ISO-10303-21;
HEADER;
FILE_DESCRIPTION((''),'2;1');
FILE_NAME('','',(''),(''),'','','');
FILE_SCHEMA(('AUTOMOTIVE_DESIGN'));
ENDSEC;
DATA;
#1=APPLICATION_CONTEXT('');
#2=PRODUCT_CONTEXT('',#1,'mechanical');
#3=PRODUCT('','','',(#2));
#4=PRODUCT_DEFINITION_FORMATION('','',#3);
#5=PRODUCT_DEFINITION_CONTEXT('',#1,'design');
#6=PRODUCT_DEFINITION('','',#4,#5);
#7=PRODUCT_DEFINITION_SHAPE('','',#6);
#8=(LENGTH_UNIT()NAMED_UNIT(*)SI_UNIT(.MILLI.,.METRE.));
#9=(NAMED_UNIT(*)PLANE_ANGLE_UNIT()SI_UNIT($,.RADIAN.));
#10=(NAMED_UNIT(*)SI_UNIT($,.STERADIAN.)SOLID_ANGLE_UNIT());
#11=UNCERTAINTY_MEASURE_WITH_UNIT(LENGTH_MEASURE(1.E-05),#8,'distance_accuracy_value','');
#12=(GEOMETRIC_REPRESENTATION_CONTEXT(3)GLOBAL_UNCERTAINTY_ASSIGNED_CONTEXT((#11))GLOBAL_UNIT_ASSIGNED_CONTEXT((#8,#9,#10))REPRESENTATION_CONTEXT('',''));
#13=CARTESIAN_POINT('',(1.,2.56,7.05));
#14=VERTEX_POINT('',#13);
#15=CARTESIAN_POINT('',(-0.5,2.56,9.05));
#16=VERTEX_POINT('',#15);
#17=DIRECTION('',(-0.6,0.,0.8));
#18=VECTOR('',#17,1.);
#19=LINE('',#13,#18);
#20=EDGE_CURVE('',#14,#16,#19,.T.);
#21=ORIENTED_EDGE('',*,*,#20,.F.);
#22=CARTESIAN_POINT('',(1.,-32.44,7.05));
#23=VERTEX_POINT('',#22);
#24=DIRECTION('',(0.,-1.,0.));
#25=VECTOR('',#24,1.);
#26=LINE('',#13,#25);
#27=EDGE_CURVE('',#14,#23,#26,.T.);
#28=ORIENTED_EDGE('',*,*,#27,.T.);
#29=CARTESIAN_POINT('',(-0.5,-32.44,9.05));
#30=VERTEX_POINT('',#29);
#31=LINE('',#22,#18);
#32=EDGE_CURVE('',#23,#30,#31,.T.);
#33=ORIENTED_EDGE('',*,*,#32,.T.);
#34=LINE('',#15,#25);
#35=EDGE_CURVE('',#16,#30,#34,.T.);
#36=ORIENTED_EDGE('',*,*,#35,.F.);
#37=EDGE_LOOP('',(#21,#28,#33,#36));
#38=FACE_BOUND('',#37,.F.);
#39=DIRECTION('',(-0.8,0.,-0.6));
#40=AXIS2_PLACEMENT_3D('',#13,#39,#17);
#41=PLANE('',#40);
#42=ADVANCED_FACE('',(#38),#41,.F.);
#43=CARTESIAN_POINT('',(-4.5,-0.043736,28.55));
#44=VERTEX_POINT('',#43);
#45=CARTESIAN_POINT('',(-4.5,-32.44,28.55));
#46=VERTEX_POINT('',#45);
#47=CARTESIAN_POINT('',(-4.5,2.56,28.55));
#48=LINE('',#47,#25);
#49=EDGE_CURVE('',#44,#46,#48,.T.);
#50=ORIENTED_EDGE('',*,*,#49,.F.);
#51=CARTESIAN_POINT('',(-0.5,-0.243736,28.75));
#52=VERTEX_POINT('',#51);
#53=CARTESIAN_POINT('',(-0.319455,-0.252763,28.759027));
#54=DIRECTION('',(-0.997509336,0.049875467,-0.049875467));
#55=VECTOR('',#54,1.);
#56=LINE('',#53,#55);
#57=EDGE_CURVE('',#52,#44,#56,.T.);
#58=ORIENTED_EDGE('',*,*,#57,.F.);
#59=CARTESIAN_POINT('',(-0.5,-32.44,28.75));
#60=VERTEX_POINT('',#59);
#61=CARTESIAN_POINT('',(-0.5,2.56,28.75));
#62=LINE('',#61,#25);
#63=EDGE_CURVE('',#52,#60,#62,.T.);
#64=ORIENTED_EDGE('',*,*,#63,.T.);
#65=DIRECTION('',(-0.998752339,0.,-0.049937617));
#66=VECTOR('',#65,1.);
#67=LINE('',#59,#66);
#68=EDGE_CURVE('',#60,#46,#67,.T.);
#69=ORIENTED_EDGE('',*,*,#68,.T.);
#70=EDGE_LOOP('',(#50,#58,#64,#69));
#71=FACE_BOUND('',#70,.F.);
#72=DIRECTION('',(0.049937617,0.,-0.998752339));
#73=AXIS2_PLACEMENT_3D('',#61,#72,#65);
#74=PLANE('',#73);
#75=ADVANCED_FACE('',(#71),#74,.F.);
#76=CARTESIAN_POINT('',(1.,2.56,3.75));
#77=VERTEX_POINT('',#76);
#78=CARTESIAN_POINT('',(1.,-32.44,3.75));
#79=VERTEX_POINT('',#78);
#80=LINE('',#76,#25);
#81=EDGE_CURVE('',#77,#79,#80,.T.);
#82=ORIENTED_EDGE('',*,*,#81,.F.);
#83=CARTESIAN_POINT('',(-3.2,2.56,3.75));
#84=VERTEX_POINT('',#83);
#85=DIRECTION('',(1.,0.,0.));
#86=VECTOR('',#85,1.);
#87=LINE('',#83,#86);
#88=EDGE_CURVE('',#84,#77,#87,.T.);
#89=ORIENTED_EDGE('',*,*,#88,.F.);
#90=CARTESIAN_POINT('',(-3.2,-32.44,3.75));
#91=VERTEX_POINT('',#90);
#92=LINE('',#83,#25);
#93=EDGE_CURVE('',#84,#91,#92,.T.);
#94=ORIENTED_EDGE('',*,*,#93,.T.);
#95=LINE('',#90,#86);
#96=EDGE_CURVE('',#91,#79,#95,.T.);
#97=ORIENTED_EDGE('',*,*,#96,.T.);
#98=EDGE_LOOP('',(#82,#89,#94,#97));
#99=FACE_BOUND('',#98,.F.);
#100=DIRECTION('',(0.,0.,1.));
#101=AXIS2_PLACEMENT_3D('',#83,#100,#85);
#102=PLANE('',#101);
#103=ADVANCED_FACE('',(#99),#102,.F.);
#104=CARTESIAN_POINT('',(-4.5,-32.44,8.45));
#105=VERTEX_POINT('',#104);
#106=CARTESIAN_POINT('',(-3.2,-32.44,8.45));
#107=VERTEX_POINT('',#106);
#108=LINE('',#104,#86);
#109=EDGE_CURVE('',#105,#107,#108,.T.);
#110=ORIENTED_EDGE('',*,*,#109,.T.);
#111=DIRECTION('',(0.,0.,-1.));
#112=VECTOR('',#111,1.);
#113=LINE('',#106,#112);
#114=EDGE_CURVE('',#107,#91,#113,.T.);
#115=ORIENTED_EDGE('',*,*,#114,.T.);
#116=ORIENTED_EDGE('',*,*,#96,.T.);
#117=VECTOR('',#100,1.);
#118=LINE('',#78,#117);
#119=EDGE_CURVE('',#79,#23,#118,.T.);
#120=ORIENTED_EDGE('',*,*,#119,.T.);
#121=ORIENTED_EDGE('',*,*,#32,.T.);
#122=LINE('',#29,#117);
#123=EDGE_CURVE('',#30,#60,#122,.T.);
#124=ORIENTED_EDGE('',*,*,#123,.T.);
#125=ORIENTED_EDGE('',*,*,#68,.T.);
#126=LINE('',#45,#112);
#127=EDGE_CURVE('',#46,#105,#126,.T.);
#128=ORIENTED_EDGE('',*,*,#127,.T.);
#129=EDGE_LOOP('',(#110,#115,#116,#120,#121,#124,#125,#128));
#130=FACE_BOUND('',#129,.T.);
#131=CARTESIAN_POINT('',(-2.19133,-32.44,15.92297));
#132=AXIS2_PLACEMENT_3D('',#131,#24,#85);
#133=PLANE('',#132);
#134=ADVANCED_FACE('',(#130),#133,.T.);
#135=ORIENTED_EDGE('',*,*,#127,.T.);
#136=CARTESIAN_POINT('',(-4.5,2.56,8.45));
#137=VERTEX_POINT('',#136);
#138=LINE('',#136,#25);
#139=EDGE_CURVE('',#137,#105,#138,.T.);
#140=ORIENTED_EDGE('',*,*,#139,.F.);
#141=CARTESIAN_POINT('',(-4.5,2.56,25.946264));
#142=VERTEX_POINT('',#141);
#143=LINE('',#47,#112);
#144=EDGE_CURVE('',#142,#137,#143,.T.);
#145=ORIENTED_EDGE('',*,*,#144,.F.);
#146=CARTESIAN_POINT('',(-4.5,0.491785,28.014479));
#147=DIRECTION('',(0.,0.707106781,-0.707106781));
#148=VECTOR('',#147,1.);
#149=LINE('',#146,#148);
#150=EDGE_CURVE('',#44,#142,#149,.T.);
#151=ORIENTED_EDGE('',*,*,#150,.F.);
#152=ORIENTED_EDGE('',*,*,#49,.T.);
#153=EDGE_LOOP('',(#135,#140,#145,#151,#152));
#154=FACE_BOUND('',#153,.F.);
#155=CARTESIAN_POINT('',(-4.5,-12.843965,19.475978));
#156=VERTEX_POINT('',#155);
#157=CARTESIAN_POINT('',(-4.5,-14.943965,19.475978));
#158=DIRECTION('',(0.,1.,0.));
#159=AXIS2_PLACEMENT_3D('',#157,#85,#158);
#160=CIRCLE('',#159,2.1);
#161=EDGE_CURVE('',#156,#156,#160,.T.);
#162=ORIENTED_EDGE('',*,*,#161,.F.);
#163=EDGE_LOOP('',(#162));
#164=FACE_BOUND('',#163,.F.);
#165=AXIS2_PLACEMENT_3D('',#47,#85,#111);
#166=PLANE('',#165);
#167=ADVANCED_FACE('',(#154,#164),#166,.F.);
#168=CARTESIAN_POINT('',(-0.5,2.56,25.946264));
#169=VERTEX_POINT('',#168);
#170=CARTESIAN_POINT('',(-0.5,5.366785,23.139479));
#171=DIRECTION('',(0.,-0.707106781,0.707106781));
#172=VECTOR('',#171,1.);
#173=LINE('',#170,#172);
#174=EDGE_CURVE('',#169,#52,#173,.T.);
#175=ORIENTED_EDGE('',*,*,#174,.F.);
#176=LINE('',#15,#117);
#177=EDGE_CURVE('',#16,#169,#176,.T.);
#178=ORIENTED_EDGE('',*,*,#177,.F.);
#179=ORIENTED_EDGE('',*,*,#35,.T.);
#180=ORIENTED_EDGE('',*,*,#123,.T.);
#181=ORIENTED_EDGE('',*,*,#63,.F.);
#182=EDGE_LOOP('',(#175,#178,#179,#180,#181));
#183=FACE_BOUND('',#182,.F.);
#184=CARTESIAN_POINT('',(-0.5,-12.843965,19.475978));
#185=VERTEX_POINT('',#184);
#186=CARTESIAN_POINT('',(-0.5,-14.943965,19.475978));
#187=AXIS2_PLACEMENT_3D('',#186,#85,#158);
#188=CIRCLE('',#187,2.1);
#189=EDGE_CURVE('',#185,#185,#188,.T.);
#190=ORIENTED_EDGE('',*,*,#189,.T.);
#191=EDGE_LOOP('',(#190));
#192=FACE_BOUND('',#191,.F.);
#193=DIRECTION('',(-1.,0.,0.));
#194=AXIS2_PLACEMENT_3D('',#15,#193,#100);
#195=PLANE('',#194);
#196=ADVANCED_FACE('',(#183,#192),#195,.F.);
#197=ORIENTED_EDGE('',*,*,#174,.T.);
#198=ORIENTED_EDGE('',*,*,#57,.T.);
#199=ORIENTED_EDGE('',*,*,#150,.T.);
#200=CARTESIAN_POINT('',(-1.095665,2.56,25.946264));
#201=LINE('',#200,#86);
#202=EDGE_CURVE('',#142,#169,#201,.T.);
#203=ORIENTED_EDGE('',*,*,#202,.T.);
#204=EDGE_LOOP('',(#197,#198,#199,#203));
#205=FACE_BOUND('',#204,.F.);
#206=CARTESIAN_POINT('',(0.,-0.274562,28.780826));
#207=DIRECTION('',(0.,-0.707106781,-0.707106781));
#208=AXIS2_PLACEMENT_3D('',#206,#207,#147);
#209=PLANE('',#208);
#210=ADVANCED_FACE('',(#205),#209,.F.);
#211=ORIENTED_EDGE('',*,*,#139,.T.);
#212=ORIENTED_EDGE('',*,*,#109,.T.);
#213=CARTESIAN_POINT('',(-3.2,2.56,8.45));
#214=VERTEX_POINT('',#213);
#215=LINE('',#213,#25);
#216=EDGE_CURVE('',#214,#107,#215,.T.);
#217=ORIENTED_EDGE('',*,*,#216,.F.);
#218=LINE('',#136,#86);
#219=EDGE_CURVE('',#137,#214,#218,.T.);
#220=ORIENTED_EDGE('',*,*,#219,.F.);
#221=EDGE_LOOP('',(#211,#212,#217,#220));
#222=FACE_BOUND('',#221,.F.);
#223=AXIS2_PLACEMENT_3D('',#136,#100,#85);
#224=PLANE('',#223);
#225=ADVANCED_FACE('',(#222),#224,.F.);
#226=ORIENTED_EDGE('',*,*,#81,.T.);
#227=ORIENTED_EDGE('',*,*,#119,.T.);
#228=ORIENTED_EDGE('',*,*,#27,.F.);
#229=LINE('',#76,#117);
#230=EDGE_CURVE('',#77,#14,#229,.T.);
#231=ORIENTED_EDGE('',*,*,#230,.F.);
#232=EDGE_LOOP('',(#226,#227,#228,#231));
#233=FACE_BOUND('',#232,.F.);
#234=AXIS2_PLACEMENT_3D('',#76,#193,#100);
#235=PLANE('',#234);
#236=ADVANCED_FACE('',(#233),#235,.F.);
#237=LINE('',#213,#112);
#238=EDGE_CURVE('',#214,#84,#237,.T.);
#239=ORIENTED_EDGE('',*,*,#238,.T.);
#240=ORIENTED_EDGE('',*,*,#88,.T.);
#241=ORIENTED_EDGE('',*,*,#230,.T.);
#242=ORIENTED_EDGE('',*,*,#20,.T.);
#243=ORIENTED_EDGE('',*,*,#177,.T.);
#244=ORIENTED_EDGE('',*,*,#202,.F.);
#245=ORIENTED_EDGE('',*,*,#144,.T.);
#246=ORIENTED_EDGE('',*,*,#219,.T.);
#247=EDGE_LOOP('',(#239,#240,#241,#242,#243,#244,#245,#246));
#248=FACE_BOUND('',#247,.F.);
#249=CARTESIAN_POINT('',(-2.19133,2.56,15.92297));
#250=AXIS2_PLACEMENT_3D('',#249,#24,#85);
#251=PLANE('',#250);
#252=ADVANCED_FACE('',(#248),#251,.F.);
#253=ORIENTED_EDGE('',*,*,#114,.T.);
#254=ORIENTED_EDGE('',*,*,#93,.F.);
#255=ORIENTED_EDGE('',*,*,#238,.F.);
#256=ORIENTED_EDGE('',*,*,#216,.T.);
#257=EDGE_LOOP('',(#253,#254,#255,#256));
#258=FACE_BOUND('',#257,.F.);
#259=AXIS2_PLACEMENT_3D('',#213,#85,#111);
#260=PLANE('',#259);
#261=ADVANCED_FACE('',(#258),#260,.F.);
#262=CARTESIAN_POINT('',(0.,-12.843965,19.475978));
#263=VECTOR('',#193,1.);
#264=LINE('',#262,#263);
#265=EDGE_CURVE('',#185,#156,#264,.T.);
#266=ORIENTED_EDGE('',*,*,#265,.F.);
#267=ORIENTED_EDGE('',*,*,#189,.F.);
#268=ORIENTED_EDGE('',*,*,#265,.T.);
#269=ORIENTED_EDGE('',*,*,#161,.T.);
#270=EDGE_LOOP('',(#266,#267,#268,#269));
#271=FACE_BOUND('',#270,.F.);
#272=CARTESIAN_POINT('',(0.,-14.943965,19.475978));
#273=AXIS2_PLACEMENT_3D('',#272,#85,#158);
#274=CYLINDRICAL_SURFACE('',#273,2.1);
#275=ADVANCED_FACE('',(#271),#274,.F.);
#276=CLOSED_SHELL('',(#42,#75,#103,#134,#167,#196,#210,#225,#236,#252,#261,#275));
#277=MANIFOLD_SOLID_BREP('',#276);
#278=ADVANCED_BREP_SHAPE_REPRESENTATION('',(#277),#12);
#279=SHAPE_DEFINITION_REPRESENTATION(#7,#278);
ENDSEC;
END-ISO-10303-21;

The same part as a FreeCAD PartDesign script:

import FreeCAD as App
import Part
import Sketcher

V = App.Vector

doc = App.newDocument("Part")
params = doc.addObject("Spreadsheet::Sheet", "Params")
for row, (alias, value) in enumerate([
    ("sketch1_width", "4.2 mm"),
    ("sketch1_width2", "1.3 mm"),
    ("sketch1_height", "3.3 mm"),
    ("sketch1_height2", "19.7 mm"),
    ("sketch1_height3", "20.1 mm"),
    ("pad1_length", "35 mm"),
    ("sketch2_width", "2.9 mm"),
    ("sketch3_diameter", "4.2 mm"),
], start=1):
    params.set(f"A{row}", alias)
    params.set(f"B{row}", "=" + value)
    params.setAlias(f"B{row}", alias)

body = doc.addObject("PartDesign::Body", "Body")

# Sketch on XZ plane
sketch1 = body.newObject("Sketcher::SketchObject", "Sketch")
sketch1.AttachmentSupport = (doc.getObject("XZ_Plane"), [""])
sketch1.MapMode = "FlatFace"
sketch1.AttachmentOffset = App.Placement(V(0, 0, -2.56), App.Rotation())
sketch1.addGeometry([
    Part.LineSegment(V(-3.2, 3.75, 0), V(1, 3.75, 0)),  # 0
    Part.LineSegment(V(1, 3.75, 0), V(1, 7.05, 0)),  # 1
    Part.LineSegment(V(1, 7.05, 0), V(-0.5, 9.05, 0)),  # 2
    Part.LineSegment(V(-0.5, 9.05, 0), V(-0.5, 28.75, 0)),  # 3
    Part.LineSegment(V(-0.5, 28.75, 0), V(-4.5, 28.55, 0)),  # 4
    Part.LineSegment(V(-4.5, 28.55, 0), V(-4.5, 8.45, 0)),  # 5
    Part.LineSegment(V(-4.5, 8.45, 0), V(-3.2, 8.45, 0)),  # 6
    Part.LineSegment(V(-3.2, 8.45, 0), V(-3.2, 3.75, 0)),  # 7
], False)
sketch1.addConstraint([
    Sketcher.Constraint("Coincident", 0, 2, 1, 1),
    Sketcher.Constraint("Coincident", 1, 2, 2, 1),
    Sketcher.Constraint("Coincident", 2, 2, 3, 1),
    Sketcher.Constraint("Coincident", 3, 2, 4, 1),
    Sketcher.Constraint("Coincident", 4, 2, 5, 1),
    Sketcher.Constraint("Coincident", 5, 2, 6, 1),
    Sketcher.Constraint("Coincident", 6, 2, 7, 1),
    Sketcher.Constraint("Coincident", 7, 2, 0, 1),
    Sketcher.Constraint("Horizontal", 0),
    Sketcher.Constraint("Vertical", 1),
    Sketcher.Constraint("Vertical", 3),
    Sketcher.Constraint("Vertical", 5),
    Sketcher.Constraint("Horizontal", 6),
    Sketcher.Constraint("Vertical", 7),
    Sketcher.Constraint("DistanceX", 0, 1, 0, 2, 4.2),
    Sketcher.Constraint("DistanceX", 6, 1, 6, 2, 1.3),
    Sketcher.Constraint("DistanceY", 1, 1, 1, 2, 3.3),
    Sketcher.Constraint("DistanceY", 3, 1, 3, 2, 19.7),
    Sketcher.Constraint("DistanceY", 5, 2, 5, 1, 20.1),
    Sketcher.Constraint("DistanceY", 7, 2, 7, 1, 4.7),
    Sketcher.Constraint("DistanceX", -1, 1, 0, 2, 1.0),
    Sketcher.Constraint("DistanceY", 1, 2, 2, 2, 2.0),
    Sketcher.Constraint("DistanceX", 4, 2, 3, 2, 4.0),
    Sketcher.Constraint("DistanceY", -1, 1, 0, 2, 3.75),
])
sketch1.setExpression("Constraints[14]", "Params.sketch1_width")
sketch1.setExpression("Constraints[15]", "Params.sketch1_width2")
sketch1.setExpression("Constraints[16]", "Params.sketch1_height")
sketch1.setExpression("Constraints[17]", "Params.sketch1_height2")
sketch1.setExpression("Constraints[18]", "Params.sketch1_height3")
pad1 = body.newObject("PartDesign::Pad", "Pad")
pad1.Profile = sketch1
pad1.setExpression("Length", "Params.pad1_length")

# Sketch on YZ plane
sketch2 = body.newObject("Sketcher::SketchObject", "Sketch001")
sketch2.AttachmentSupport = (doc.getObject("YZ_Plane"), [""])
sketch2.MapMode = "FlatFace"
sketch2.addGeometry([
    Part.LineSegment(V(-0.274562, 28.780826, 0), V(2.625438, 25.880826, 0)),
    Part.LineSegment(V(2.625438, 25.880826, 0), V(2.625438, 28.780826, 0)),
    Part.LineSegment(V(2.625438, 28.780826, 0), V(-0.274562, 28.780826, 0)),
], False)
sketch2.addConstraint([
    Sketcher.Constraint("Coincident", 0, 2, 1, 1),
    Sketcher.Constraint("Coincident", 1, 2, 2, 1),
    Sketcher.Constraint("Coincident", 2, 2, 0, 1),
    Sketcher.Constraint("Vertical", 1),
    Sketcher.Constraint("Horizontal", 2),
    Sketcher.Constraint("Equal", 2, 1),
    Sketcher.Constraint("DistanceX", 2, 2, 2, 1, 2.9),
    Sketcher.Constraint("DistanceX", 2, 2, -1, 1, 0.274562),
    Sketcher.Constraint("DistanceY", -1, 1, 0, 2, 25.880826),
])
sketch2.setExpression("Constraints[6]", "Params.sketch2_width")
pocket1 = body.newObject("PartDesign::Pocket", "Pocket")
pocket1.Profile = sketch2
pocket1.Type = "ThroughAll"

# Sketch on YZ plane
sketch3 = body.newObject("Sketcher::SketchObject", "Sketch002")
sketch3.AttachmentSupport = (doc.getObject("YZ_Plane"), [""])
sketch3.MapMode = "FlatFace"
sketch3.addGeometry(Part.Circle(V(-14.943965, 19.475978, 0), V(0, 0, 1), 2.1), False)
sketch3.addConstraint([
    Sketcher.Constraint("Diameter", 0, 4.2),
    Sketcher.Constraint("DistanceY", -1, 1, 0, 3, 19.475978),
    Sketcher.Constraint("DistanceX", 0, 3, -1, 1, 14.943965),
])
sketch3.setExpression("Constraints[0]", "Params.sketch3_diameter")
pocket2 = body.newObject("PartDesign::Pocket", "Pocket001")
pocket2.Profile = sketch3
pocket2.Type = "ThroughAll"

doc.recompute()
